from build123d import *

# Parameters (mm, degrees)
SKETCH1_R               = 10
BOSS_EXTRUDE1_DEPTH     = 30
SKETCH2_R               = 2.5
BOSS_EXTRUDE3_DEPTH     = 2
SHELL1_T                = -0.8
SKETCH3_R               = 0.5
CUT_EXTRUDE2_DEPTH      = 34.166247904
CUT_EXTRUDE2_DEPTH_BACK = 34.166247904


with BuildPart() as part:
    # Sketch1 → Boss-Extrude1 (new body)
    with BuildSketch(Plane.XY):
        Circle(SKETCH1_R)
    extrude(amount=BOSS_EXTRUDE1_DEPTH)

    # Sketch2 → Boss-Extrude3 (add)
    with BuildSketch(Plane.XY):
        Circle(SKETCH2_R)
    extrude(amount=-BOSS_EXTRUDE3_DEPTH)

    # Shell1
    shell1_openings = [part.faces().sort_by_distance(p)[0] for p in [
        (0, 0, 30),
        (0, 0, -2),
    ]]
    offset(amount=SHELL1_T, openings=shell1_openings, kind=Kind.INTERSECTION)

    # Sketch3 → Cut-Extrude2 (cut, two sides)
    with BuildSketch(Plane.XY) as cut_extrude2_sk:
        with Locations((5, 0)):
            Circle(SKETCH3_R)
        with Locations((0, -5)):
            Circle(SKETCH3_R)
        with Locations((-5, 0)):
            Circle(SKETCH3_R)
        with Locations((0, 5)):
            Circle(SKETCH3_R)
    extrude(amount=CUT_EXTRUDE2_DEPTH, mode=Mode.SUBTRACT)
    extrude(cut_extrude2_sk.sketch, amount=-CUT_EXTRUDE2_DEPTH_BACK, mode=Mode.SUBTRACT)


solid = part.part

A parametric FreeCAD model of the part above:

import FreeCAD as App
import Part
import Sketcher
Q = App.Units.Quantity


def faces_at(feature, points):
    """Names of the faces that lie closest to the given points."""
    faces = feature.Shape.Faces
    near = lambda p: min(range(len(faces)), key=lambda i: faces[i].distToShape(Part.Vertex(*p))[0])
    return sorted({f"Face{near(p) + 1}" for p in points})

doc = App.newDocument("Part")
params = doc.addObject("Spreadsheet::Sheet", "Params")
for row, (alias, value) in enumerate([
    ("sketch1_diameter", "20 mm"),
    ("pad1_length", "30 mm"),
    ("sketch2_diameter", "5 mm"),
    ("pad2_length", "2 mm"),
    ("thickness_wall", "0.8 mm"),
    ("sketch3_diameter", "1 mm"),
], start=1):
    params.set(f"A{row}", alias)
    params.set(f"B{row}", "=" + value)
    params.setAlias(f"B{row}", alias)

body = doc.addObject("PartDesign::Body", "Body")

# Sketch on XY plane
sketch1 = body.newObject("Sketcher::SketchObject", "Sketch")
sketch1.AttachmentSupport = (doc.getObject("XY_Plane"), [""])
sketch1.MapMode = "FlatFace"
sketch1.addGeometry(Part.Circle(App.Vector(0, 0, 0), App.Vector(0, 0, 1), 10), False)
sketch1.addConstraint(Sketcher.Constraint("Coincident", 0, 3, -1, 1))
sketch1.addConstraint(Sketcher.Constraint("Diameter", 0, Q("20 mm")))
sketch1.setExpression("Constraints[1]", "Params.sketch1_diameter")
pad1 = body.newObject("PartDesign::Pad", "Pad")
pad1.Profile = sketch1
pad1.setExpression("Length", "Params.pad1_length")

# Sketch on XY plane
sketch2 = body.newObject("Sketcher::SketchObject", "Sketch001")
sketch2.AttachmentSupport = (doc.getObject("XY_Plane"), [""])
sketch2.MapMode = "FlatFace"
sketch2.addGeometry(Part.Circle(App.Vector(0, 0, 0), App.Vector(0, 0, 1), 2.5), False)
sketch2.addConstraint(Sketcher.Constraint("Coincident", 0, 3, -1, 1))
sketch2.addConstraint(Sketcher.Constraint("Diameter", 0, Q("5 mm")))
sketch2.setExpression("Constraints[1]", "Params.sketch2_diameter")
pad2 = body.newObject("PartDesign::Pad", "Pad001")
pad2.Profile = sketch2
pad2.setExpression("Length", "Params.pad2_length")
pad2.Reversed = True
doc.recompute()

thickness = body.newObject("PartDesign::Thickness", "Thickness")
thickness.Base = (pad2, faces_at(pad2, [(0, 0, 30), (0, 0, -2)]))
thickness.setExpression("Value", "Params.thickness_wall")
thickness.Reversed = True
thickness.Join = "Intersection"

# Sketch on XY plane
sketch3 = body.newObject("Sketcher::SketchObject", "Sketch002")
sketch3.AttachmentSupport = (doc.getObject("XY_Plane"), [""])
sketch3.MapMode = "FlatFace"
sketch3.addGeometry(Part.Circle(App.Vector(5, 0, 0), App.Vector(0, 0, 1), 0.5), False)
sketch3.addGeometry(Part.Circle(App.Vector(0, -5, 0), App.Vector(0, 0, 1), 0.5), False)
sketch3.addGeometry(Part.Circle(App.Vector(-5, 0, 0), App.Vector(0, 0, 1), 0.5), False)
sketch3.addGeometry(Part.Circle(App.Vector(0, 5, 0), App.Vector(0, 0, 1), 0.5), False)
sketch3.addConstraint(Sketcher.Constraint("Equal", 0, 1))
sketch3.addConstraint(Sketcher.Constraint("Equal", 1, 2))
sketch3.addConstraint(Sketcher.Constraint("Equal", 2, 3))
sketch3.addConstraint(Sketcher.Constraint("Symmetric", 0, 3, 2, 3, -1, 1))
sketch3.addConstraint(Sketcher.Constraint("Symmetric", 1, 3, 3, 3, -1, 1))
sketch3.addConstraint(Sketcher.Constraint("PointOnObject", 0, 3, -1))
sketch3.addConstraint(Sketcher.Constraint("PointOnObject", 1, 3, -2))
sketch3.addConstraint(Sketcher.Constraint("Diameter", 0, Q("1 mm")))
sketch3.addConstraint(Sketcher.Constraint("DistanceX", -1, 1, 0, 3, Q("5 mm")))
sketch3.addConstraint(Sketcher.Constraint("DistanceY", 1, 3, -1, 1, Q("5 mm")))
sketch3.setExpression("Constraints[7]", "Params.sketch3_diameter")
pocket1 = body.newObject("PartDesign::Pocket", "Pocket")
pocket1.Profile = sketch3
pocket1.Type = "ThroughAll"
pocket1.Midplane = True

doc.recompute()
